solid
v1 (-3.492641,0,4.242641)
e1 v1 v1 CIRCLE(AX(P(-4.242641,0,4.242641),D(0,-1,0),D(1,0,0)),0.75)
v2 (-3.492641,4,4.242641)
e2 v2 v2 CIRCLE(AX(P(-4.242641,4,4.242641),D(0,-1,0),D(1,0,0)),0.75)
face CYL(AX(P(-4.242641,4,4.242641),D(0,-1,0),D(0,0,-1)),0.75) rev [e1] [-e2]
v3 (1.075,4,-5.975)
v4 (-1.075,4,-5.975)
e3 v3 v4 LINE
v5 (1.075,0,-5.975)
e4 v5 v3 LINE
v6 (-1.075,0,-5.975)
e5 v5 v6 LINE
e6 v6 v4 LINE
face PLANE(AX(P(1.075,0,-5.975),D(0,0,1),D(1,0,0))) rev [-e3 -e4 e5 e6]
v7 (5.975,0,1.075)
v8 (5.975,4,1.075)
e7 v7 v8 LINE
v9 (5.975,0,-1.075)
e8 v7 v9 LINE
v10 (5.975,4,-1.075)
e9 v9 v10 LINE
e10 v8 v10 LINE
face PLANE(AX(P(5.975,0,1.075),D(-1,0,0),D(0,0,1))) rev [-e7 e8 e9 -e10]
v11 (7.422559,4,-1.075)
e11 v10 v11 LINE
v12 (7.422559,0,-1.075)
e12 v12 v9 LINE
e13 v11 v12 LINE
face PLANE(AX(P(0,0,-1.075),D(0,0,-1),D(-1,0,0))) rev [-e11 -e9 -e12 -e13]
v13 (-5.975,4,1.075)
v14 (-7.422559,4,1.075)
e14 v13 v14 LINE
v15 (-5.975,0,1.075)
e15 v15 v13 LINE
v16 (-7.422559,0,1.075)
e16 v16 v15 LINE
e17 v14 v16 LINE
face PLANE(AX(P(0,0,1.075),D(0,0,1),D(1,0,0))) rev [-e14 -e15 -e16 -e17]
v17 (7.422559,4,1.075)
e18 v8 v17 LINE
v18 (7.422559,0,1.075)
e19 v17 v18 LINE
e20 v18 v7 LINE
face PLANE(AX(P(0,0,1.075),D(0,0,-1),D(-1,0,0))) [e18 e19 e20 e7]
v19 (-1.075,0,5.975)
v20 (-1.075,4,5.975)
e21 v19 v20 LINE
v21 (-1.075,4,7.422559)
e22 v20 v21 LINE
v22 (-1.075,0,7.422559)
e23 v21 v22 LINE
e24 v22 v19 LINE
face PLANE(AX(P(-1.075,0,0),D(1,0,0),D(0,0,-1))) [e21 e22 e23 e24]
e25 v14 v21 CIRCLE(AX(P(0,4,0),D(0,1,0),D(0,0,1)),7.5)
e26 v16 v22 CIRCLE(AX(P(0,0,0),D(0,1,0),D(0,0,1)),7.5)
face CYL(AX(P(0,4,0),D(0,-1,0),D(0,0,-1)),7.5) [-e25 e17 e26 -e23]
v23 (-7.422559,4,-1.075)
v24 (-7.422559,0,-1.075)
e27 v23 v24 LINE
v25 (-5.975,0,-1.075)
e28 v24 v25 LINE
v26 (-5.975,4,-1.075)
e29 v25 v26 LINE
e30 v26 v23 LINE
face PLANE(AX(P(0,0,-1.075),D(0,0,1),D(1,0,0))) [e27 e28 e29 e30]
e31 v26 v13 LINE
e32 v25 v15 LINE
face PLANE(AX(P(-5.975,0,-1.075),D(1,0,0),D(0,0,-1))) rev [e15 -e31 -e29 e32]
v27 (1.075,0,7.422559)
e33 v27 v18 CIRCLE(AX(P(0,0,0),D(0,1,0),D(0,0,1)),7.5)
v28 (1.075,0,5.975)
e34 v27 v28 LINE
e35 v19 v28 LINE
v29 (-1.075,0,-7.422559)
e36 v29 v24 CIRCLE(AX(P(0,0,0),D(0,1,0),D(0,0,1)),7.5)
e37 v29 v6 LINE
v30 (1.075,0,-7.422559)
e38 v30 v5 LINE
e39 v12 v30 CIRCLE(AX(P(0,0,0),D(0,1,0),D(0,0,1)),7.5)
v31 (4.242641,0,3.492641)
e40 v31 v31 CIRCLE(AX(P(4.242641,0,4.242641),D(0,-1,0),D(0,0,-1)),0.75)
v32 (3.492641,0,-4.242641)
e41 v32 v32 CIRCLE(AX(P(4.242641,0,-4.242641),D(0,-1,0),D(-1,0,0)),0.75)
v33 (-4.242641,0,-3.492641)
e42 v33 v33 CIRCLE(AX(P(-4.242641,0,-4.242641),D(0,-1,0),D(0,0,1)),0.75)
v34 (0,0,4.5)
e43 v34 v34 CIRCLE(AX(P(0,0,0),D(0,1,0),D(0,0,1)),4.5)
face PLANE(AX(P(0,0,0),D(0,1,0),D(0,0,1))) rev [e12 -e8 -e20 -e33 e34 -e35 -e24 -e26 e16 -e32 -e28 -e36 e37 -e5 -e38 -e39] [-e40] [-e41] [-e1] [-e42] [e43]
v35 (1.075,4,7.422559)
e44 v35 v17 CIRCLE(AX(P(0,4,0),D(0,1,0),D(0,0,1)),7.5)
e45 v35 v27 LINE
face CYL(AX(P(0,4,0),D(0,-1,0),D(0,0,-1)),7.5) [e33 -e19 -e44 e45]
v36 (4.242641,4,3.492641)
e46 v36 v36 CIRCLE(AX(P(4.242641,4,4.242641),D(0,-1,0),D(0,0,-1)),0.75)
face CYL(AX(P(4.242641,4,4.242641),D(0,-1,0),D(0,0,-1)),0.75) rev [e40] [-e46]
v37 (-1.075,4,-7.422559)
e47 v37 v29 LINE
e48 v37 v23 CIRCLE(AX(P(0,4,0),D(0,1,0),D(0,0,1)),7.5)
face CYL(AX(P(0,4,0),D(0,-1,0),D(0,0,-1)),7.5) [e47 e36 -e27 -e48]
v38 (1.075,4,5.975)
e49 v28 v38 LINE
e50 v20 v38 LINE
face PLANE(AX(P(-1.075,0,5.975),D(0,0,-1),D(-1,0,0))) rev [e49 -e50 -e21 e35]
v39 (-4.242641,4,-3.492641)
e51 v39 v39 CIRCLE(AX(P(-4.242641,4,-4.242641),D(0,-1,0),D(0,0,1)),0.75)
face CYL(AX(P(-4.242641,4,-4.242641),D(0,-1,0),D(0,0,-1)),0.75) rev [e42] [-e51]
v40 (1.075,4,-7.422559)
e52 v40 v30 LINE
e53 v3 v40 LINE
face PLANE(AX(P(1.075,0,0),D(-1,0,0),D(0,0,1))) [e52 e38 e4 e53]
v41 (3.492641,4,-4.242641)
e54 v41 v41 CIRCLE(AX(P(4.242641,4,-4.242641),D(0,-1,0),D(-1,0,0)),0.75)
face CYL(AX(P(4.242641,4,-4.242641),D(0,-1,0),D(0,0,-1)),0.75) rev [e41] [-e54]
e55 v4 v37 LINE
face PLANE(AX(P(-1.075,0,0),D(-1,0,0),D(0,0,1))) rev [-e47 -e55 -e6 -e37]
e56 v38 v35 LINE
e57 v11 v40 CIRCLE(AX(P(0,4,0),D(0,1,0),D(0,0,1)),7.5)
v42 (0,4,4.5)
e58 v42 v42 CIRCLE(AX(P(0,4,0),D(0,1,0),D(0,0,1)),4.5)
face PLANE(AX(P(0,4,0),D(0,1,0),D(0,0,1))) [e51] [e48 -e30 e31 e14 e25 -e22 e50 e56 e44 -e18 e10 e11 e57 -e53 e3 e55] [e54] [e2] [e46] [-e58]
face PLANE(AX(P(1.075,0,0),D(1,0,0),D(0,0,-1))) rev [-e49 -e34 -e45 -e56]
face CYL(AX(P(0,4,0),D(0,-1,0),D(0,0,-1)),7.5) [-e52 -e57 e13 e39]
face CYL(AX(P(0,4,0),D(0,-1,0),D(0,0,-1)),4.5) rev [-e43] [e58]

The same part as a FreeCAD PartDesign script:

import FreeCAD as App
import Part
import Sketcher

V = App.Vector
Q = App.Units.Quantity

doc = App.newDocument("Part")
params = doc.addObject("Spreadsheet::Sheet", "Params")
for row, (alias, value) in enumerate([
    ("sketch1_diameter", "15 mm"),
    ("sketch1_diameter2", "9 mm"),
    ("pad1_length", "4 mm"),
    ("sketch2_width", "4 mm"),
    ("pocket1_length", "2.15 mm"),
    ("sketch3_diameter", "1.5 mm"),
], start=1):
    params.set(f"A{row}", alias)
    params.set(f"B{row}", "=" + value)
    params.setAlias(f"B{row}", alias)

body = doc.addObject("PartDesign::Body", "Body")

# Sketch on XZ plane
sketch1 = doc.addObject("Sketcher::SketchObject", "Sketch")
body.addObject(sketch1)
sketch1.AttachmentSupport = (doc.XZ_Plane, [""])
sketch1.MapMode = "FlatFace"
sketch1.addGeometry([
    Part.Circle(V(0, 0, 0), V(0, 0, 1), 7.5),
    Part.Circle(V(0, 0, 0), V(0, 0, 1), 4.5),
], False)
sketch1.addConstraint([
    Sketcher.Constraint("Coincident", 0, 3, -1, 1),
    Sketcher.Constraint("Coincident", 1, 3, -1, 1),
    Sketcher.Constraint("Diameter", 0, Q("15 mm")),
    Sketcher.Constraint("Diameter", 1, Q("9 mm")),
])
sketch1.setExpression("Constraints[2]", "Params.sketch1_diameter")
sketch1.setExpression("Constraints[3]", "Params.sketch1_diameter2")
pad1 = doc.addObject("PartDesign::Pad", "Pad")
body.addObject(pad1)
pad1.Profile = sketch1
pad1.setExpression("Length", "Params.pad1_length")
pad1.Reversed = True

# Sketch on YZ plane
sketch2 = doc.addObject("Sketcher::SketchObject", "Sketch001")
body.addObject(sketch2)
sketch2.AttachmentSupport = (doc.YZ_Plane, [""])
sketch2.MapMode = "FlatFace"
sketch2.addGeometry([
    Part.LineSegment(V(4, 7.5, 0), V(0, 7.5, 0)),
    Part.LineSegment(V(0, 7.5, 0), V(0, 5.975, 0)),
    Part.LineSegment(V(0, 5.975, 0), V(4, 5.975, 0)),
    Part.LineSegment(V(4, 5.975, 0), V(4, 7.5, 0)),
], False)
sketch2.addConstraint([
    Sketcher.Constraint("Coincident", 0, 2, 1, 1),
    Sketcher.Constraint("Coincident", 1, 2, 2, 1),
    Sketcher.Constraint("Coincident", 2, 2, 3, 1),
    Sketcher.Constraint("Coincident", 3, 2, 0, 1),
    Sketcher.Constraint("Horizontal", 0),
    Sketcher.Constraint("Vertical", 1),
    Sketcher.Constraint("Horizontal", 2),
    Sketcher.Constraint("Vertical", 3),
    Sketcher.Constraint("PointOnObject", 0, 2, -2),
    Sketcher.Constraint("DistanceX", 0, 2, 0, 1, Q("4 mm")),
    Sketcher.Constraint("DistanceY", -1, 1, 0, 2, Q("7.5 mm")),
    Sketcher.Constraint("DistanceY", 1, 2, 1, 1, Q("1.525 mm")),
])
sketch2.setExpression("Constraints[9]", "Params.sketch2_width")
pocket1 = doc.addObject("PartDesign::Pocket", "Pocket")
body.addObject(pocket1)
pocket1.Profile = sketch2
pocket1.setExpression("Length", "Params.pocket1_length")
pocket1.Midplane = True
doc.recompute()

polarpattern = doc.addObject("PartDesign::PolarPattern", "PolarPattern")
body.addObject(polarpattern)
polarpattern.Originals = [pocket1]
polarpattern.Axis = (doc.Y_Axis, [""])
polarpattern.Angle = 360
polarpattern.Occurrences = 4
body.Tip = polarpattern

# Sketch on XZ plane
sketch3 = doc.addObject("Sketcher::SketchObject", "Sketch002")
body.addObject(sketch3)
sketch3.AttachmentSupport = (doc.XZ_Plane, [""])
sketch3.MapMode = "FlatFace"
sketch3.addGeometry(Part.Circle(V(4.242641, 4.242641, 0), V(0, 0, 1), 0.75), False)
sketch3.addConstraint([
    Sketcher.Constraint("Diameter", 0, Q("1.5 mm")),
    Sketcher.Constraint("DistanceX", -1, 1, 0, 3, Q("4.242641 mm")),
    Sketcher.Constraint("DistanceY", -1, 1, 0, 3, Q("4.242641 mm")),
])
sketch3.setExpression("Constraints[0]", "Params.sketch3_diameter")
pocket2 = doc.addObject("PartDesign::Pocket", "Pocket001")
body.addObject(pocket2)
pocket2.Profile = sketch3
pocket2.Type = "ThroughAll"
doc.recompute()

polarpattern2 = doc.addObject("PartDesign::PolarPattern", "PolarPattern001")
body.addObject(polarpattern2)
polarpattern2.Originals = [pocket2]
polarpattern2.Axis = (doc.Y_Axis, [""])
polarpattern2.Angle = 360
polarpattern2.Occurrences = 4
body.Tip = polarpattern2

doc.recompute()
